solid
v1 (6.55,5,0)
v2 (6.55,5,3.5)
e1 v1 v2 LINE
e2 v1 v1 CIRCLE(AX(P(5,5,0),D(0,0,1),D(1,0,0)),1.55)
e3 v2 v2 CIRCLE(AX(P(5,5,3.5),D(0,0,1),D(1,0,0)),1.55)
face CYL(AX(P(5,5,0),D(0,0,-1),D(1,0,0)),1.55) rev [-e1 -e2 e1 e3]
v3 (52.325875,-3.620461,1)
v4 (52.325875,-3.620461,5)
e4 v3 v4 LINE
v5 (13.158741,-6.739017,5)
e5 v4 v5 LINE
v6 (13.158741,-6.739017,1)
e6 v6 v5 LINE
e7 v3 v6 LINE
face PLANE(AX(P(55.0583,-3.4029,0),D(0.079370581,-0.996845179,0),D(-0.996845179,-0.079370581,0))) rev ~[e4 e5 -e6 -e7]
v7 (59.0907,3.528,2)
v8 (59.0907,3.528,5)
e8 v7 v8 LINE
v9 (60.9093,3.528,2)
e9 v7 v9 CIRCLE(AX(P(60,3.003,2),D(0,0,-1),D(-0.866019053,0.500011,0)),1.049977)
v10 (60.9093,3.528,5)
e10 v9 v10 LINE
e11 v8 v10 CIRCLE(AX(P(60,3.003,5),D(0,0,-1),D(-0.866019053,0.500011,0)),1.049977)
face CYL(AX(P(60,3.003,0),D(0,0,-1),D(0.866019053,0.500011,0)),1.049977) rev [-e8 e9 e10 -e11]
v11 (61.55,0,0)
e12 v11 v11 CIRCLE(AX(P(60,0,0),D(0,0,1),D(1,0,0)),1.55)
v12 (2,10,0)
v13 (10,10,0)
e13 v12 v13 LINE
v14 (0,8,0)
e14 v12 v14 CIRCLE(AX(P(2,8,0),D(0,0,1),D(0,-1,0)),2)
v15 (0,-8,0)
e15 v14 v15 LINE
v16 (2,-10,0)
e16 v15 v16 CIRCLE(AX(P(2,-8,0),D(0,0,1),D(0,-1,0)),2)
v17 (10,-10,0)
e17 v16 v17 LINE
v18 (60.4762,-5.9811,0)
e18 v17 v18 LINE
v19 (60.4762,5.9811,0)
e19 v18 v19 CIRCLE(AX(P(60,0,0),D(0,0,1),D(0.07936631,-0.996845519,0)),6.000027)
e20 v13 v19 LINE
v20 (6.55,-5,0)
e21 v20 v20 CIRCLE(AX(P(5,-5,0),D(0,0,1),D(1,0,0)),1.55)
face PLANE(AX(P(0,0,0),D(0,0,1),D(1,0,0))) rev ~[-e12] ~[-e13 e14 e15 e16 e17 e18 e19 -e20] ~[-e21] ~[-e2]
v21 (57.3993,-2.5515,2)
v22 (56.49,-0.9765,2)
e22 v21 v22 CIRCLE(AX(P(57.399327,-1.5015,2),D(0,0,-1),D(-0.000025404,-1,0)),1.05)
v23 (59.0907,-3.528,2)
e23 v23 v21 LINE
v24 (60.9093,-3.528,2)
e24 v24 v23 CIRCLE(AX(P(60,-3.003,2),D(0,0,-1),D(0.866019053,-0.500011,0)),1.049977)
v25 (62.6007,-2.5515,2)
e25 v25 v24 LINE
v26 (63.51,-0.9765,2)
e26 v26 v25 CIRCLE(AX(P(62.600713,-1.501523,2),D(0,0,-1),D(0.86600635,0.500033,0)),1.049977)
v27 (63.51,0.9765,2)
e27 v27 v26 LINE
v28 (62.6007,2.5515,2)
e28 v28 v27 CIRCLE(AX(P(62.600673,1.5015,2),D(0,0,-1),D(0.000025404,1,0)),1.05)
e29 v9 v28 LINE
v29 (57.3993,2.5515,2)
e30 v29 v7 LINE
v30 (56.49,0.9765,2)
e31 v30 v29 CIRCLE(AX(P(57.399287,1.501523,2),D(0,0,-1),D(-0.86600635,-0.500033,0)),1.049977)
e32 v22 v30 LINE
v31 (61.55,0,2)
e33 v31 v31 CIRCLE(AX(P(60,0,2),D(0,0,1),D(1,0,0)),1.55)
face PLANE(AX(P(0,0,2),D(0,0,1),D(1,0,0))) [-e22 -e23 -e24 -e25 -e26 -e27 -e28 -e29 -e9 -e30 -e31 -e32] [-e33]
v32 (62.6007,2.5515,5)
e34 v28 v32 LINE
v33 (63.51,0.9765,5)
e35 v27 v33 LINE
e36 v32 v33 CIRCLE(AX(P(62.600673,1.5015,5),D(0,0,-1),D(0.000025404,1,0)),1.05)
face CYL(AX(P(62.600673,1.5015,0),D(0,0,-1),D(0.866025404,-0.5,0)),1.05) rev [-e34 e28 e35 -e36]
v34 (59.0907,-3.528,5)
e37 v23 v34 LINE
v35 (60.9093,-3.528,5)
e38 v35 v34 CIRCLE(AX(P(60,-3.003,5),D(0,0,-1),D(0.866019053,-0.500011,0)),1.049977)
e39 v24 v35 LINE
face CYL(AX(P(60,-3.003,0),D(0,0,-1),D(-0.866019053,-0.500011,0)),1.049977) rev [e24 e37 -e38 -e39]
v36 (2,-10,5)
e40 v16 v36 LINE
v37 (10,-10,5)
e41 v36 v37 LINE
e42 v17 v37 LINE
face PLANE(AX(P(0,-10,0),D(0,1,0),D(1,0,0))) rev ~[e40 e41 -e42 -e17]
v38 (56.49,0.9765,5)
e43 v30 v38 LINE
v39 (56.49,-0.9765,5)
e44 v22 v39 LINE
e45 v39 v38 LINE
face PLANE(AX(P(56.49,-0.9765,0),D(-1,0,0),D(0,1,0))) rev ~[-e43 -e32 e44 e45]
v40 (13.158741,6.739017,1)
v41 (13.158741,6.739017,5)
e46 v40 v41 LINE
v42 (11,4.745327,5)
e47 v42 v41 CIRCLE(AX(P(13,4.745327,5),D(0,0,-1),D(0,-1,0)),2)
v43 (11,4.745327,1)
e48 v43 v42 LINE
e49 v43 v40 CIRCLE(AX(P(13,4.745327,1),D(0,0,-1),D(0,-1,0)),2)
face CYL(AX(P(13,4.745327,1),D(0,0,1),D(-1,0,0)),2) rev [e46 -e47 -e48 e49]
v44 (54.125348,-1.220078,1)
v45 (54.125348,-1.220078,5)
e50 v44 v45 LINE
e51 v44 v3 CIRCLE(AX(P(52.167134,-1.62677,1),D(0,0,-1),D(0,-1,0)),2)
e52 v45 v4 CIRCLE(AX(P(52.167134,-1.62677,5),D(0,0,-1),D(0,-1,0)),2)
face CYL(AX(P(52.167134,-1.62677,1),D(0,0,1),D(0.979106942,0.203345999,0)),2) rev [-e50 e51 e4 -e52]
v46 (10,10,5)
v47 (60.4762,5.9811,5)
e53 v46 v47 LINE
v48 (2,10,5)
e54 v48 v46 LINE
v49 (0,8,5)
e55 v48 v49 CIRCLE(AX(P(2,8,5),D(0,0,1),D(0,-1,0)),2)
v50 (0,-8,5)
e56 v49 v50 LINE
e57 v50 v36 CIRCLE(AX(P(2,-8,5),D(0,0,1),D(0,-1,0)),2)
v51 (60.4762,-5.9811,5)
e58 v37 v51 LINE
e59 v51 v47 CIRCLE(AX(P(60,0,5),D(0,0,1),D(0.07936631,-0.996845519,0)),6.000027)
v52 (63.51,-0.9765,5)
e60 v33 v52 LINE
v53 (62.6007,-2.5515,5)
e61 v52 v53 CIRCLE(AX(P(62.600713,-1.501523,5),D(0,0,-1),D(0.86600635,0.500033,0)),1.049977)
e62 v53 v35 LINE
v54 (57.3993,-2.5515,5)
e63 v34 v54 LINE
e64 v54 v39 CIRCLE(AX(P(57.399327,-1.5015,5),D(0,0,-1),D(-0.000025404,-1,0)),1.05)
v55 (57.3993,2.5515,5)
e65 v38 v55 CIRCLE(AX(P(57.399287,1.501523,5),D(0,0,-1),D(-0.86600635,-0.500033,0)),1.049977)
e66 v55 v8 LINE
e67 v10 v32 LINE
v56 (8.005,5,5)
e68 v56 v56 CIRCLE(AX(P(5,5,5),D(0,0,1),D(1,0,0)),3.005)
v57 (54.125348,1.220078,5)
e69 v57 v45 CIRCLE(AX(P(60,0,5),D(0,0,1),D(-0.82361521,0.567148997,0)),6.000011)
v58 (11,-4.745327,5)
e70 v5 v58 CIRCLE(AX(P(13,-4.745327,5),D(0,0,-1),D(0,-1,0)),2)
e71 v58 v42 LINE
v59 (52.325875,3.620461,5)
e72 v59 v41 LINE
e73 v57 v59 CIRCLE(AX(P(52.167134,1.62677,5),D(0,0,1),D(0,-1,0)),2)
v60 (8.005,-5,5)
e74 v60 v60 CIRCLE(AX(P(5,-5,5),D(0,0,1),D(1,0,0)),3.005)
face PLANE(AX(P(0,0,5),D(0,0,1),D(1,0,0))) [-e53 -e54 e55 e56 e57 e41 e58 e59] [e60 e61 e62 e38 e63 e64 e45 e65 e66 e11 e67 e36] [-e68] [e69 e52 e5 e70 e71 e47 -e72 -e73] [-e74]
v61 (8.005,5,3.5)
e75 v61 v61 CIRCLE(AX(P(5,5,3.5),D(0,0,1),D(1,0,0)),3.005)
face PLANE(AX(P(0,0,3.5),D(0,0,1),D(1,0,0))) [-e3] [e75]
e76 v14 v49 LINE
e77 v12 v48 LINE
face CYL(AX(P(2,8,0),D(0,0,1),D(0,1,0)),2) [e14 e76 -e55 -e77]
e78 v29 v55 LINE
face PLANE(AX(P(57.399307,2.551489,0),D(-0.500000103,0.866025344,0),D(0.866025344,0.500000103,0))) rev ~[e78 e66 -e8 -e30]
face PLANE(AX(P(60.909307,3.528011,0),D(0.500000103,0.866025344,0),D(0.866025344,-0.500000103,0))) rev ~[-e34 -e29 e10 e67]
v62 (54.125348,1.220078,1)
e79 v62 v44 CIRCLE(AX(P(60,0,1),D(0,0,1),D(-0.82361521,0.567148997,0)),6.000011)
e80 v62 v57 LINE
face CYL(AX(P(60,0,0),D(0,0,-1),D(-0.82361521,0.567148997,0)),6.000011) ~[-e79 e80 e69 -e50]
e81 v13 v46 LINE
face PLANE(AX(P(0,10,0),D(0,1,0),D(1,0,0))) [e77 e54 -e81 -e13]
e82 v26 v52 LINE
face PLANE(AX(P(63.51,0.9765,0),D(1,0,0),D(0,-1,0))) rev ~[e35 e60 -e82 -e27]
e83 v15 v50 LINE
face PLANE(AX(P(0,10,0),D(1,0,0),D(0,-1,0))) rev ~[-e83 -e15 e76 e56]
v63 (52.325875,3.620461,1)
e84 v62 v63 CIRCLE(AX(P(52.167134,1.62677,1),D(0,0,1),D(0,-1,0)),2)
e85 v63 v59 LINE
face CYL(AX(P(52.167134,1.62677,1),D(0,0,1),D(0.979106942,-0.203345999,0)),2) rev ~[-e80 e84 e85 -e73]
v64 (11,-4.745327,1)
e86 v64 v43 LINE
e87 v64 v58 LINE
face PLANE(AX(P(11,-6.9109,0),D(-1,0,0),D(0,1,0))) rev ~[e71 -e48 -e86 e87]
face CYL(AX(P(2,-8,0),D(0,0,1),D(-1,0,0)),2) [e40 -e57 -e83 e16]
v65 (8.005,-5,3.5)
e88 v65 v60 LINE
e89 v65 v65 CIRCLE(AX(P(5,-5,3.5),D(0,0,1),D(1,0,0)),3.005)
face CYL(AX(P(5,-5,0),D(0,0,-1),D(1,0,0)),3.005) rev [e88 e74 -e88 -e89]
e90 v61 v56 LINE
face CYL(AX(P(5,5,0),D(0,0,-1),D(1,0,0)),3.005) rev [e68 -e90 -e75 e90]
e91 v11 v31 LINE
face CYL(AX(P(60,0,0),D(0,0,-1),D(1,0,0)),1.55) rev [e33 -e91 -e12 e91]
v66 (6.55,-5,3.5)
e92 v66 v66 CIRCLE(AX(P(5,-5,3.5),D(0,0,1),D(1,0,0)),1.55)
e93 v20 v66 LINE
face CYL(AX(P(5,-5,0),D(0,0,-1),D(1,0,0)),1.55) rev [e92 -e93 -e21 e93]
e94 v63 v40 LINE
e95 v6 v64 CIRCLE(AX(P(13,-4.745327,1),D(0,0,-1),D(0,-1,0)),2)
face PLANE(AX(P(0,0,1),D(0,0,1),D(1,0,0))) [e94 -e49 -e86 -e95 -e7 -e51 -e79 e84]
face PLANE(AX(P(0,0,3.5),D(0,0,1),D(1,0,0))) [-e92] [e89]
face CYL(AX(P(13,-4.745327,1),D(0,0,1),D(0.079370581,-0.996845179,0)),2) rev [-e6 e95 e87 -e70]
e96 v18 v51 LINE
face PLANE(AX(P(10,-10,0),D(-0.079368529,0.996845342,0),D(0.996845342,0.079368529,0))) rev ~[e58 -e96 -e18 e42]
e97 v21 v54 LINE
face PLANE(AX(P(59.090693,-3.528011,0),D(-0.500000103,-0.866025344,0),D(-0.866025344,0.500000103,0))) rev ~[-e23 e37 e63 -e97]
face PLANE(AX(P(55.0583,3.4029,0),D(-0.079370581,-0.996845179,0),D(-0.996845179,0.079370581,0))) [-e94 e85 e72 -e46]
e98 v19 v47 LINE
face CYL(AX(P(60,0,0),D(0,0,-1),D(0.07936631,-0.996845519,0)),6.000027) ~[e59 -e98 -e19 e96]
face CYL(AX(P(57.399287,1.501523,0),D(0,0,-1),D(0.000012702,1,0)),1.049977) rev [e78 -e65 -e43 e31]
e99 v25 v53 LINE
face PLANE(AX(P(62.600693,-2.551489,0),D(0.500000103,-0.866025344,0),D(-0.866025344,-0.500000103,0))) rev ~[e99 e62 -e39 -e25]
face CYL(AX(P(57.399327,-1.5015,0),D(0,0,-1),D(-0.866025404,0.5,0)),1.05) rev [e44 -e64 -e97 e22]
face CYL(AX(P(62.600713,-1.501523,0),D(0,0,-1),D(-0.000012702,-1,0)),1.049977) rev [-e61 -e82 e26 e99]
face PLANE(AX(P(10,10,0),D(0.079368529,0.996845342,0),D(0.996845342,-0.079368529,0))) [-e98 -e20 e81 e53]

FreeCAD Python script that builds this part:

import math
import FreeCAD as App
import Part
import Sketcher
Q = App.Units.Quantity


def edges_at(feature, points):
    """Names of the edges that pass closest to the given points."""
    edges = feature.Shape.Edges
    near = lambda p: min(range(len(edges)), key=lambda i: edges[i].distToShape(Part.Vertex(*p))[0])
    return sorted({f"Edge{near(p) + 1}" for p in points})

doc = App.newDocument("Part")
params = doc.addObject("Spreadsheet::Sheet", "Params")
for row, (alias, value) in enumerate([
    ("sketch1_radius", "6 mm"),
    ("sketch1_diameter", "6.01 mm"),
    ("sketch1_width", "10 mm"),
    ("sketch1_height", "20 mm"),
    ("sketch1_radius2", "1.05 mm"),
    ("pad1_length", "5 mm"),
    ("sketch2_diameter", "3.1 mm"),
    ("sketch2_diameter2", "6.01 mm"),
    ("pad2_length", "3.5 mm"),
    ("sketch3_diameter", "3.1 mm"),
    ("sketch3_radius", "1.05 mm"),
    ("pad3_length", "2 mm"),
    ("sketch4_radius", "6 mm"),
    ("pad4_length", "1 mm"),
    ("fillet_radius", "2 mm"),
], start=1):
    params.set(f"A{row}", alias)
    params.set(f"B{row}", "=" + value)
    params.setAlias(f"B{row}", alias)

body = doc.addObject("PartDesign::Body", "Body")

# Sketch on XY plane
sketch1 = body.newObject("Sketcher::SketchObject", "Sketch")
sketch1.AttachmentSupport = (doc.getObject("XY_Plane"), [""])
sketch1.MapMode = "FlatFace"
sketch1.addGeometry([
    Part.LineSegment(App.Vector(10, 10, 0), App.Vector(0, 10, 0)),  # 0
    Part.LineSegment(App.Vector(0, 10, 0), App.Vector(0, -10, 0)),  # 1
    Part.LineSegment(App.Vector(0, -10, 0), App.Vector(10, -10, 0)),  # 2
    Part.LineSegment(App.Vector(10, -10, 0), App.Vector(60.5, -6, 0)),  # 3
    Part.ArcOfCircle(Part.Circle(App.Vector(60, 0, 0), App.Vector(0, 0, 1), 6), math.radians(-85), math.radians(85)),  # 4
    Part.LineSegment(App.Vector(60.5, 6, 0), App.Vector(10, 10, 0)),  # 5
    Part.Circle(App.Vector(5, -5, 0), App.Vector(0, 0, 1), 3),  # 6
    Part.Circle(App.Vector(5, 5, 0), App.Vector(0, 0, 1), 3),  # 7
    Part.ArcOfCircle(Part.Circle(App.Vector(60, 0, 0), App.Vector(0, 0, 1), 6), math.radians(145), math.radians(215)),  # 8
    Part.LineSegment(App.Vector(55.1, -3.4, 0), App.Vector(11, -6.9, 0)),  # 9
    Part.LineSegment(App.Vector(11, -6.9, 0), App.Vector(11, 6.9, 0)),  # 10
    Part.LineSegment(App.Vector(11, 6.9, 0), App.Vector(55.1, 3.4, 0)),  # 11
    Part.ArcOfCircle(Part.Circle(App.Vector(62.6, 1.5, 0), App.Vector(0, 0, 1), 1), math.radians(-30), math.radians(90)),  # 12
    Part.LineSegment(App.Vector(63.5, 1, 0), App.Vector(63.5, -1, 0)),  # 13
    Part.ArcOfCircle(Part.Circle(App.Vector(62.6, -1.5, 0), App.Vector(0, 0, 1), 1), math.radians(-90), math.radians(30)),  # 14
    Part.LineSegment(App.Vector(62.6, -2.6, 0), App.Vector(60.9, -3.5, 0)),  # 15
    Part.ArcOfCircle(Part.Circle(App.Vector(60, -3, 0), App.Vector(0, 0, 1), 1), math.radians(-150), math.radians(-30)),  # 16
    Part.LineSegment(App.Vector(59.1, -3.5, 0), App.Vector(57.4, -2.6, 0)),  # 17
    Part.ArcOfCircle(Part.Circle(App.Vector(57.4, -1.5, 0), App.Vector(0, 0, 1), 1), math.radians(150), math.radians(270)),  # 18
    Part.LineSegment(App.Vector(56.5, -1, 0), App.Vector(56.5, 1, 0)),  # 19
    Part.ArcOfCircle(Part.Circle(App.Vector(57.4, 1.5, 0), App.Vector(0, 0, 1), 1), math.radians(90), math.radians(210)),  # 20
    Part.LineSegment(App.Vector(57.4, 2.6, 0), App.Vector(59.1, 3.5, 0)),  # 21
    Part.ArcOfCircle(Part.Circle(App.Vector(60, 3, 0), App.Vector(0, 0, 1), 1), math.radians(30), math.radians(150)),  # 22
    Part.LineSegment(App.Vector(60.9, 3.5, 0), App.Vector(62.6, 2.6, 0)),  # 23
], False)
sketch1.addConstraint([
    Sketcher.Constraint("Coincident", 0, 2, 1, 1),
    Sketcher.Constraint("Coincident", 1, 2, 2, 1),
    Sketcher.Constraint("Coincident", 2, 2, 3, 1),
    Sketcher.Constraint("Tangent", 3, 2, 4, 1),
    Sketcher.Constraint("Tangent", 4, 2, 5, 1),
    Sketcher.Constraint("Coincident", 5, 2, 0, 1),
    Sketcher.Constraint("Coincident", 8, 2, 9, 1),
    Sketcher.Constraint("Coincident", 9, 2, 10, 1),
    Sketcher.Constraint("Coincident", 10, 2, 11, 1),
    Sketcher.Constraint("Coincident", 11, 2, 8, 1),
    Sketcher.Constraint("Coincident", 12, 1, 13, 1),
    Sketcher.Constraint("Coincident", 13, 2, 14, 2),
    Sketcher.Constraint("Coincident", 14, 1, 15, 1),
    Sketcher.Constraint("Coincident", 15, 2, 16, 2),
    Sketcher.Constraint("Coincident", 16, 1, 17, 1),
    Sketcher.Constraint("Coincident", 17, 2, 18, 2),
    Sketcher.Constraint("Coincident", 18, 1, 19, 1),
    Sketcher.Constraint("Coincident", 19, 2, 20, 2),
    Sketcher.Constraint("Coincident", 20, 1, 21, 1),
    Sketcher.Constraint("Coincident", 21, 2, 22, 2),
    Sketcher.Constraint("Coincident", 22, 1, 23, 1),
    Sketcher.Constraint("Coincident", 23, 2, 12, 2),
    Sketcher.Constraint("Horizontal", 0),
    Sketcher.Constraint("Vertical", 1),
    Sketcher.Constraint("Horizontal", 2),
    Sketcher.Constraint("Vertical", 10),
    Sketcher.Constraint("Vertical", 13),
    Sketcher.Constraint("Vertical", 19),
    Sketcher.Constraint("Coincident", 8, 3, 4, 3),
    Sketcher.Constraint("Equal", 6, 7),
    Sketcher.Constraint("Equal", 4, 8),
    Sketcher.Constraint("Equal", 12, 14),
    Sketcher.Constraint("Equal", 14, 16),
    Sketcher.Constraint("Equal", 16, 18),
    Sketcher.Constraint("Equal", 18, 20),
    Sketcher.Constraint("Equal", 20, 22),
    Sketcher.Constraint("Symmetric", 0, 2, 1, 2, -1, 1),
    Sketcher.Constraint("Symmetric", 6, 3, 7, 3, -1),
    Sketcher.Constraint("Symmetric", 12, 3, 14, 3, -1),
    Sketcher.Constraint("Symmetric", 18, 3, 20, 3, -1),
    Sketcher.Constraint("Symmetric", 16, 3, 22, 3, -1),
    Sketcher.Constraint("Symmetric", 3, 2, 4, 2, -1),
    Sketcher.Constraint("Parallel", 3, 9),
    Sketcher.Constraint("Parallel", 5, 11),
    Sketcher.Constraint("Parallel", 15, 21),
    Sketcher.Constraint("Parallel", 17, 23),
    Sketcher.Constraint("Horizontal", 14, 3, 18, 3),
    Sketcher.Constraint("Horizontal", 15, 2, 16, 1),
    Sketcher.Constraint("Horizontal", 13, 2, 18, 1),
    Sketcher.Constraint("Horizontal", 21, 2, 22, 1),
    Sketcher.Constraint("Vertical", 8, 3, 16, 3),
    Sketcher.Constraint("Vertical", 8, 2, 11, 2),
    Sketcher.Constraint("Vertical", 12, 3, 14, 1),
    Sketcher.Constraint("Vertical", 20, 3, 17, 2),
    Sketcher.Constraint("Vertical", 17, 2, 20, 1),
    Sketcher.Constraint("Vertical", 16, 1, 21, 2),
    Sketcher.Constraint("Radius", 4, Q("6 mm")),
    Sketcher.Constraint("Diameter", 6, Q("6.01 mm")),
    Sketcher.Constraint("DistanceX", 0, 2, 0, 1, Q("10 mm")),
    Sketcher.Constraint("DistanceY", 1, 2, 1, 1, Q("20 mm")),
    Sketcher.Constraint("Radius", 12, Q("1.05 mm")),
    Sketcher.Constraint("DistanceX", -1, 1, 4, 3, Q("60 mm")),
    Sketcher.Constraint("DistanceX", -1, 1, 6, 3, Q("5 mm")),
    Sketcher.Constraint("DistanceY", 6, 3, -1, 1, Q("5 mm")),
    Sketcher.Constraint("DistanceX", 6, 3, 9, 2, Q("6 mm")),
    Sketcher.Constraint("Angle", 15, Q("-150 deg")),
    Sketcher.Constraint("DistanceY", 8, 2, 16, 3, Q("0.4 mm")),
    Sketcher.Constraint("DistanceY", 13, 2, 13, 1, Q("1.953 mm")),
    Sketcher.Constraint("DistanceX", -1, 1, 12, 1, Q("63.51 mm")),
    Sketcher.Constraint("DistanceX", 17, 2, 15, 2, Q("3.51 mm")),
    Sketcher.Constraint("Distance", 15, Q("1.953 mm")),
])
sketch1.setExpression("Constraints[56]", "Params.sketch1_radius")
sketch1.setExpression("Constraints[57]", "Params.sketch1_diameter")
sketch1.setExpression("Constraints[58]", "Params.sketch1_width")
sketch1.setExpression("Constraints[59]", "Params.sketch1_height")
sketch1.setExpression("Constraints[60]", "Params.sketch1_radius2")
pad1 = body.newObject("PartDesign::Pad", "Pad")
pad1.Profile = sketch1
pad1.setExpression("Length", "Params.pad1_length")

# Sketch on XY plane
sketch2 = body.newObject("Sketcher::SketchObject", "Sketch001")
sketch2.AttachmentSupport = (doc.getObject("XY_Plane"), [""])
sketch2.MapMode = "FlatFace"
sketch2.addGeometry([
    Part.Circle(App.Vector(5, 5, 0), App.Vector(0, 0, 1), 3),
    Part.Circle(App.Vector(5, 5, 0), App.Vector(0, 0, 1), 1.6),
    Part.Circle(App.Vector(5, -5, 0), App.Vector(0, 0, 1), 3),
    Part.Circle(App.Vector(5, -5, 0), App.Vector(0, 0, 1), 1.6),
], False)
sketch2.addConstraint([
    Sketcher.Constraint("Coincident", 1, 3, 0, 3),
    Sketcher.Constraint("Coincident", 3, 3, 2, 3),
    Sketcher.Constraint("Equal", 0, 2),
    Sketcher.Constraint("Equal", 1, 3),
    Sketcher.Constraint("Symmetric", 0, 3, 2, 3, -1),
    Sketcher.Constraint("Diameter", 1, Q("3.1 mm")),
    Sketcher.Constraint("Diameter", 0, Q("6.01 mm")),
    Sketcher.Constraint("DistanceX", -1, 1, 0, 3, Q("5 mm")),
    Sketcher.Constraint("DistanceY", -1, 1, 0, 3, Q("5 mm")),
])
sketch2.setExpression("Constraints[5]", "Params.sketch2_diameter")
sketch2.setExpression("Constraints[6]", "Params.sketch2_diameter2")
pad2 = body.newObject("PartDesign::Pad", "Pad001")
pad2.Profile = sketch2
pad2.setExpression("Length", "Params.pad2_length")

# Sketch on XY plane
sketch3 = body.newObject("Sketcher::SketchObject", "Sketch002")
sketch3.AttachmentSupport = (doc.getObject("XY_Plane"), [""])
sketch3.MapMode = "FlatFace"
sketch3.addGeometry([
    Part.ArcOfCircle(Part.Circle(App.Vector(62.6, 1.5, 0), App.Vector(0, 0, 1), 1), math.radians(-30), math.radians(90)),  # 0
    Part.LineSegment(App.Vector(62.6, 2.6, 0), App.Vector(60.9, 3.5, 0)),  # 1
    Part.ArcOfCircle(Part.Circle(App.Vector(60, 3, 0), App.Vector(0, 0, 1), 1), math.radians(30), math.radians(150)),  # 2
    Part.LineSegment(App.Vector(59.1, 3.5, 0), App.Vector(57.4, 2.6, 0)),  # 3
    Part.ArcOfCircle(Part.Circle(App.Vector(57.4, 1.5, 0), App.Vector(0, 0, 1), 1), math.radians(90), math.radians(210)),  # 4
    Part.LineSegment(App.Vector(56.5, 1, 0), App.Vector(56.5, -1, 0)),  # 5
    Part.ArcOfCircle(Part.Circle(App.Vector(57.4, -1.5, 0), App.Vector(0, 0, 1), 1), math.radians(150), math.radians(270)),  # 6
    Part.LineSegment(App.Vector(57.4, -2.6, 0), App.Vector(59.1, -3.5, 0)),  # 7
    Part.ArcOfCircle(Part.Circle(App.Vector(60, -3, 0), App.Vector(0, 0, 1), 1), math.radians(-150), math.radians(-30)),  # 8
    Part.LineSegment(App.Vector(60.9, -3.5, 0), App.Vector(62.6, -2.6, 0)),  # 9
    Part.ArcOfCircle(Part.Circle(App.Vector(62.6, -1.5, 0), App.Vector(0, 0, 1), 1), math.radians(-90), math.radians(30)),  # 10
    Part.LineSegment(App.Vector(63.5, -1, 0), App.Vector(63.5, 1, 0)),  # 11
    Part.Circle(App.Vector(60, 0, 0), App.Vector(0, 0, 1), 1.6),  # 12
], False)
sketch3.addConstraint([
    Sketcher.Constraint("Coincident", 0, 2, 1, 1),
    Sketcher.Constraint("Coincident", 1, 2, 2, 1),
    Sketcher.Constraint("Coincident", 2, 2, 3, 1),
    Sketcher.Constraint("Coincident", 3, 2, 4, 1),
    Sketcher.Constraint("Coincident", 4, 2, 5, 1),
    Sketcher.Constraint("Coincident", 5, 2, 6, 1),
    Sketcher.Constraint("Coincident", 6, 2, 7, 1),
    Sketcher.Constraint("Coincident", 7, 2, 8, 1),
    Sketcher.Constraint("Coincident", 8, 2, 9, 1),
    Sketcher.Constraint("Coincident", 9, 2, 10, 1),
    Sketcher.Constraint("Coincident", 10, 2, 11, 1),
    Sketcher.Constraint("Coincident", 11, 2, 0, 1),
    Sketcher.Constraint("Vertical", 5),
    Sketcher.Constraint("Vertical", 11),
    Sketcher.Constraint("Equal", 0, 2),
    Sketcher.Constraint("Equal", 2, 4),
    Sketcher.Constraint("Equal", 4, 6),
    Sketcher.Constraint("Equal", 6, 8),
    Sketcher.Constraint("Equal", 8, 10),
    Sketcher.Constraint("Symmetric", 4, 3, 6, 3, -1),
    Sketcher.Constraint("Symmetric", 2, 3, 8, 3, -1),
    Sketcher.Constraint("Symmetric", 0, 3, 10, 3, -1),
    Sketcher.Constraint("PointOnObject", 12, 3, -1),
    Sketcher.Constraint("Parallel", 1, 7),
    Sketcher.Constraint("Parallel", 3, 9),
    Sketcher.Constraint("Horizontal", 0, 3, 4, 3),
    Sketcher.Constraint("Horizontal", 1, 2, 2, 2),
    Sketcher.Constraint("Horizontal", 7, 2, 8, 2),
    Sketcher.Constraint("Horizontal", 5, 2, 10, 2),
    Sketcher.Constraint("Vertical", 8, 3, 12, 3),
    Sketcher.Constraint("Vertical", 10, 3, 0, 2),
    Sketcher.Constraint("Vertical", 6, 3, 3, 2),
    Sketcher.Constraint("Vertical", 3, 2, 6, 2),
    Sketcher.Constraint("Vertical", 2, 2, 7, 2),
    Sketcher.Constraint("Diameter", 12, Q("3.1 mm")),
    Sketcher.Constraint("Radius", 0, Q("1.05 mm")),
    Sketcher.Constraint("DistanceX", -1, 1, 2, 3, Q("60 mm")),
    Sketcher.Constraint("Angle", 1, Q("150 deg")),
    Sketcher.Constraint("DistanceY", 5, 2, 5, 1, Q("1.953 mm")),
    Sketcher.Constraint("DistanceX", -1, 1, 4, 2, Q("56.49 mm")),
    Sketcher.Constraint("DistanceX", 4, 3, 1, 2, Q("3.51 mm")),
    Sketcher.Constraint("Distance", 1, Q("1.953 mm")),
])
sketch3.setExpression("Constraints[34]", "Params.sketch3_diameter")
sketch3.setExpression("Constraints[35]", "Params.sketch3_radius")
pad3 = body.newObject("PartDesign::Pad", "Pad002")
pad3.Profile = sketch3
pad3.setExpression("Length", "Params.pad3_length")

# Sketch on XY plane
sketch4 = body.newObject("Sketcher::SketchObject", "Sketch003")
sketch4.AttachmentSupport = (doc.getObject("XY_Plane"), [""])
sketch4.MapMode = "FlatFace"
sketch4.addGeometry([
    Part.LineSegment(App.Vector(11, -7, 0), App.Vector(55, -3, 0)),
    Part.ArcOfCircle(Part.Circle(App.Vector(60, 0, 0), App.Vector(0, 0, 1), 6), math.radians(145), math.radians(215)),
    Part.LineSegment(App.Vector(55, 3, 0), App.Vector(11, 7, 0)),
    Part.LineSegment(App.Vector(11, 7, 0), App.Vector(11, -7, 0)),
], False)
sketch4.addConstraint([
    Sketcher.Constraint("Coincident", 0, 2, 1, 2),
    Sketcher.Constraint("Coincident", 1, 1, 2, 1),
    Sketcher.Constraint("Coincident", 2, 2, 3, 1),
    Sketcher.Constraint("Coincident", 3, 2, 0, 1),
    Sketcher.Constraint("Vertical", 3),
    Sketcher.Constraint("Symmetric", 0, 2, 1, 1, -1),
    Sketcher.Constraint("Equal", 0, 2),
    Sketcher.Constraint("Radius", 1, Q("6 mm")),
    Sketcher.Constraint("DistanceX", -1, 1, 1, 3, Q("60 mm")),
    Sketcher.Constraint("DistanceX", -1, 1, 2, 2, Q("11 mm")),
    Sketcher.Constraint("DistanceY", 3, 2, 3, 1, Q("13.8218 mm")),
    Sketcher.Constraint("DistanceY", 0, 2, -1, 1, Q("3.403 mm")),
])
sketch4.setExpression("Constraints[7]", "Params.sketch4_radius")
pad4 = body.newObject("PartDesign::Pad", "Pad003")
pad4.Profile = sketch4
pad4.setExpression("Length", "Params.pad4_length")
doc.recompute()

fillet = body.newObject("PartDesign::Fillet", "Fillet")
fillet.Base = (pad4, edges_at(pad4, [
    (11, 6.911, 3),
    (11, -6.911, 3),
    (55.058, 3.403, 3),
    (55.058, -3.403, 3),
    (0, -10, 2.5),
    (0, 10, 2.5),
]))
fillet.setExpression("Radius", "Params.fillet_radius")

doc.recompute()
